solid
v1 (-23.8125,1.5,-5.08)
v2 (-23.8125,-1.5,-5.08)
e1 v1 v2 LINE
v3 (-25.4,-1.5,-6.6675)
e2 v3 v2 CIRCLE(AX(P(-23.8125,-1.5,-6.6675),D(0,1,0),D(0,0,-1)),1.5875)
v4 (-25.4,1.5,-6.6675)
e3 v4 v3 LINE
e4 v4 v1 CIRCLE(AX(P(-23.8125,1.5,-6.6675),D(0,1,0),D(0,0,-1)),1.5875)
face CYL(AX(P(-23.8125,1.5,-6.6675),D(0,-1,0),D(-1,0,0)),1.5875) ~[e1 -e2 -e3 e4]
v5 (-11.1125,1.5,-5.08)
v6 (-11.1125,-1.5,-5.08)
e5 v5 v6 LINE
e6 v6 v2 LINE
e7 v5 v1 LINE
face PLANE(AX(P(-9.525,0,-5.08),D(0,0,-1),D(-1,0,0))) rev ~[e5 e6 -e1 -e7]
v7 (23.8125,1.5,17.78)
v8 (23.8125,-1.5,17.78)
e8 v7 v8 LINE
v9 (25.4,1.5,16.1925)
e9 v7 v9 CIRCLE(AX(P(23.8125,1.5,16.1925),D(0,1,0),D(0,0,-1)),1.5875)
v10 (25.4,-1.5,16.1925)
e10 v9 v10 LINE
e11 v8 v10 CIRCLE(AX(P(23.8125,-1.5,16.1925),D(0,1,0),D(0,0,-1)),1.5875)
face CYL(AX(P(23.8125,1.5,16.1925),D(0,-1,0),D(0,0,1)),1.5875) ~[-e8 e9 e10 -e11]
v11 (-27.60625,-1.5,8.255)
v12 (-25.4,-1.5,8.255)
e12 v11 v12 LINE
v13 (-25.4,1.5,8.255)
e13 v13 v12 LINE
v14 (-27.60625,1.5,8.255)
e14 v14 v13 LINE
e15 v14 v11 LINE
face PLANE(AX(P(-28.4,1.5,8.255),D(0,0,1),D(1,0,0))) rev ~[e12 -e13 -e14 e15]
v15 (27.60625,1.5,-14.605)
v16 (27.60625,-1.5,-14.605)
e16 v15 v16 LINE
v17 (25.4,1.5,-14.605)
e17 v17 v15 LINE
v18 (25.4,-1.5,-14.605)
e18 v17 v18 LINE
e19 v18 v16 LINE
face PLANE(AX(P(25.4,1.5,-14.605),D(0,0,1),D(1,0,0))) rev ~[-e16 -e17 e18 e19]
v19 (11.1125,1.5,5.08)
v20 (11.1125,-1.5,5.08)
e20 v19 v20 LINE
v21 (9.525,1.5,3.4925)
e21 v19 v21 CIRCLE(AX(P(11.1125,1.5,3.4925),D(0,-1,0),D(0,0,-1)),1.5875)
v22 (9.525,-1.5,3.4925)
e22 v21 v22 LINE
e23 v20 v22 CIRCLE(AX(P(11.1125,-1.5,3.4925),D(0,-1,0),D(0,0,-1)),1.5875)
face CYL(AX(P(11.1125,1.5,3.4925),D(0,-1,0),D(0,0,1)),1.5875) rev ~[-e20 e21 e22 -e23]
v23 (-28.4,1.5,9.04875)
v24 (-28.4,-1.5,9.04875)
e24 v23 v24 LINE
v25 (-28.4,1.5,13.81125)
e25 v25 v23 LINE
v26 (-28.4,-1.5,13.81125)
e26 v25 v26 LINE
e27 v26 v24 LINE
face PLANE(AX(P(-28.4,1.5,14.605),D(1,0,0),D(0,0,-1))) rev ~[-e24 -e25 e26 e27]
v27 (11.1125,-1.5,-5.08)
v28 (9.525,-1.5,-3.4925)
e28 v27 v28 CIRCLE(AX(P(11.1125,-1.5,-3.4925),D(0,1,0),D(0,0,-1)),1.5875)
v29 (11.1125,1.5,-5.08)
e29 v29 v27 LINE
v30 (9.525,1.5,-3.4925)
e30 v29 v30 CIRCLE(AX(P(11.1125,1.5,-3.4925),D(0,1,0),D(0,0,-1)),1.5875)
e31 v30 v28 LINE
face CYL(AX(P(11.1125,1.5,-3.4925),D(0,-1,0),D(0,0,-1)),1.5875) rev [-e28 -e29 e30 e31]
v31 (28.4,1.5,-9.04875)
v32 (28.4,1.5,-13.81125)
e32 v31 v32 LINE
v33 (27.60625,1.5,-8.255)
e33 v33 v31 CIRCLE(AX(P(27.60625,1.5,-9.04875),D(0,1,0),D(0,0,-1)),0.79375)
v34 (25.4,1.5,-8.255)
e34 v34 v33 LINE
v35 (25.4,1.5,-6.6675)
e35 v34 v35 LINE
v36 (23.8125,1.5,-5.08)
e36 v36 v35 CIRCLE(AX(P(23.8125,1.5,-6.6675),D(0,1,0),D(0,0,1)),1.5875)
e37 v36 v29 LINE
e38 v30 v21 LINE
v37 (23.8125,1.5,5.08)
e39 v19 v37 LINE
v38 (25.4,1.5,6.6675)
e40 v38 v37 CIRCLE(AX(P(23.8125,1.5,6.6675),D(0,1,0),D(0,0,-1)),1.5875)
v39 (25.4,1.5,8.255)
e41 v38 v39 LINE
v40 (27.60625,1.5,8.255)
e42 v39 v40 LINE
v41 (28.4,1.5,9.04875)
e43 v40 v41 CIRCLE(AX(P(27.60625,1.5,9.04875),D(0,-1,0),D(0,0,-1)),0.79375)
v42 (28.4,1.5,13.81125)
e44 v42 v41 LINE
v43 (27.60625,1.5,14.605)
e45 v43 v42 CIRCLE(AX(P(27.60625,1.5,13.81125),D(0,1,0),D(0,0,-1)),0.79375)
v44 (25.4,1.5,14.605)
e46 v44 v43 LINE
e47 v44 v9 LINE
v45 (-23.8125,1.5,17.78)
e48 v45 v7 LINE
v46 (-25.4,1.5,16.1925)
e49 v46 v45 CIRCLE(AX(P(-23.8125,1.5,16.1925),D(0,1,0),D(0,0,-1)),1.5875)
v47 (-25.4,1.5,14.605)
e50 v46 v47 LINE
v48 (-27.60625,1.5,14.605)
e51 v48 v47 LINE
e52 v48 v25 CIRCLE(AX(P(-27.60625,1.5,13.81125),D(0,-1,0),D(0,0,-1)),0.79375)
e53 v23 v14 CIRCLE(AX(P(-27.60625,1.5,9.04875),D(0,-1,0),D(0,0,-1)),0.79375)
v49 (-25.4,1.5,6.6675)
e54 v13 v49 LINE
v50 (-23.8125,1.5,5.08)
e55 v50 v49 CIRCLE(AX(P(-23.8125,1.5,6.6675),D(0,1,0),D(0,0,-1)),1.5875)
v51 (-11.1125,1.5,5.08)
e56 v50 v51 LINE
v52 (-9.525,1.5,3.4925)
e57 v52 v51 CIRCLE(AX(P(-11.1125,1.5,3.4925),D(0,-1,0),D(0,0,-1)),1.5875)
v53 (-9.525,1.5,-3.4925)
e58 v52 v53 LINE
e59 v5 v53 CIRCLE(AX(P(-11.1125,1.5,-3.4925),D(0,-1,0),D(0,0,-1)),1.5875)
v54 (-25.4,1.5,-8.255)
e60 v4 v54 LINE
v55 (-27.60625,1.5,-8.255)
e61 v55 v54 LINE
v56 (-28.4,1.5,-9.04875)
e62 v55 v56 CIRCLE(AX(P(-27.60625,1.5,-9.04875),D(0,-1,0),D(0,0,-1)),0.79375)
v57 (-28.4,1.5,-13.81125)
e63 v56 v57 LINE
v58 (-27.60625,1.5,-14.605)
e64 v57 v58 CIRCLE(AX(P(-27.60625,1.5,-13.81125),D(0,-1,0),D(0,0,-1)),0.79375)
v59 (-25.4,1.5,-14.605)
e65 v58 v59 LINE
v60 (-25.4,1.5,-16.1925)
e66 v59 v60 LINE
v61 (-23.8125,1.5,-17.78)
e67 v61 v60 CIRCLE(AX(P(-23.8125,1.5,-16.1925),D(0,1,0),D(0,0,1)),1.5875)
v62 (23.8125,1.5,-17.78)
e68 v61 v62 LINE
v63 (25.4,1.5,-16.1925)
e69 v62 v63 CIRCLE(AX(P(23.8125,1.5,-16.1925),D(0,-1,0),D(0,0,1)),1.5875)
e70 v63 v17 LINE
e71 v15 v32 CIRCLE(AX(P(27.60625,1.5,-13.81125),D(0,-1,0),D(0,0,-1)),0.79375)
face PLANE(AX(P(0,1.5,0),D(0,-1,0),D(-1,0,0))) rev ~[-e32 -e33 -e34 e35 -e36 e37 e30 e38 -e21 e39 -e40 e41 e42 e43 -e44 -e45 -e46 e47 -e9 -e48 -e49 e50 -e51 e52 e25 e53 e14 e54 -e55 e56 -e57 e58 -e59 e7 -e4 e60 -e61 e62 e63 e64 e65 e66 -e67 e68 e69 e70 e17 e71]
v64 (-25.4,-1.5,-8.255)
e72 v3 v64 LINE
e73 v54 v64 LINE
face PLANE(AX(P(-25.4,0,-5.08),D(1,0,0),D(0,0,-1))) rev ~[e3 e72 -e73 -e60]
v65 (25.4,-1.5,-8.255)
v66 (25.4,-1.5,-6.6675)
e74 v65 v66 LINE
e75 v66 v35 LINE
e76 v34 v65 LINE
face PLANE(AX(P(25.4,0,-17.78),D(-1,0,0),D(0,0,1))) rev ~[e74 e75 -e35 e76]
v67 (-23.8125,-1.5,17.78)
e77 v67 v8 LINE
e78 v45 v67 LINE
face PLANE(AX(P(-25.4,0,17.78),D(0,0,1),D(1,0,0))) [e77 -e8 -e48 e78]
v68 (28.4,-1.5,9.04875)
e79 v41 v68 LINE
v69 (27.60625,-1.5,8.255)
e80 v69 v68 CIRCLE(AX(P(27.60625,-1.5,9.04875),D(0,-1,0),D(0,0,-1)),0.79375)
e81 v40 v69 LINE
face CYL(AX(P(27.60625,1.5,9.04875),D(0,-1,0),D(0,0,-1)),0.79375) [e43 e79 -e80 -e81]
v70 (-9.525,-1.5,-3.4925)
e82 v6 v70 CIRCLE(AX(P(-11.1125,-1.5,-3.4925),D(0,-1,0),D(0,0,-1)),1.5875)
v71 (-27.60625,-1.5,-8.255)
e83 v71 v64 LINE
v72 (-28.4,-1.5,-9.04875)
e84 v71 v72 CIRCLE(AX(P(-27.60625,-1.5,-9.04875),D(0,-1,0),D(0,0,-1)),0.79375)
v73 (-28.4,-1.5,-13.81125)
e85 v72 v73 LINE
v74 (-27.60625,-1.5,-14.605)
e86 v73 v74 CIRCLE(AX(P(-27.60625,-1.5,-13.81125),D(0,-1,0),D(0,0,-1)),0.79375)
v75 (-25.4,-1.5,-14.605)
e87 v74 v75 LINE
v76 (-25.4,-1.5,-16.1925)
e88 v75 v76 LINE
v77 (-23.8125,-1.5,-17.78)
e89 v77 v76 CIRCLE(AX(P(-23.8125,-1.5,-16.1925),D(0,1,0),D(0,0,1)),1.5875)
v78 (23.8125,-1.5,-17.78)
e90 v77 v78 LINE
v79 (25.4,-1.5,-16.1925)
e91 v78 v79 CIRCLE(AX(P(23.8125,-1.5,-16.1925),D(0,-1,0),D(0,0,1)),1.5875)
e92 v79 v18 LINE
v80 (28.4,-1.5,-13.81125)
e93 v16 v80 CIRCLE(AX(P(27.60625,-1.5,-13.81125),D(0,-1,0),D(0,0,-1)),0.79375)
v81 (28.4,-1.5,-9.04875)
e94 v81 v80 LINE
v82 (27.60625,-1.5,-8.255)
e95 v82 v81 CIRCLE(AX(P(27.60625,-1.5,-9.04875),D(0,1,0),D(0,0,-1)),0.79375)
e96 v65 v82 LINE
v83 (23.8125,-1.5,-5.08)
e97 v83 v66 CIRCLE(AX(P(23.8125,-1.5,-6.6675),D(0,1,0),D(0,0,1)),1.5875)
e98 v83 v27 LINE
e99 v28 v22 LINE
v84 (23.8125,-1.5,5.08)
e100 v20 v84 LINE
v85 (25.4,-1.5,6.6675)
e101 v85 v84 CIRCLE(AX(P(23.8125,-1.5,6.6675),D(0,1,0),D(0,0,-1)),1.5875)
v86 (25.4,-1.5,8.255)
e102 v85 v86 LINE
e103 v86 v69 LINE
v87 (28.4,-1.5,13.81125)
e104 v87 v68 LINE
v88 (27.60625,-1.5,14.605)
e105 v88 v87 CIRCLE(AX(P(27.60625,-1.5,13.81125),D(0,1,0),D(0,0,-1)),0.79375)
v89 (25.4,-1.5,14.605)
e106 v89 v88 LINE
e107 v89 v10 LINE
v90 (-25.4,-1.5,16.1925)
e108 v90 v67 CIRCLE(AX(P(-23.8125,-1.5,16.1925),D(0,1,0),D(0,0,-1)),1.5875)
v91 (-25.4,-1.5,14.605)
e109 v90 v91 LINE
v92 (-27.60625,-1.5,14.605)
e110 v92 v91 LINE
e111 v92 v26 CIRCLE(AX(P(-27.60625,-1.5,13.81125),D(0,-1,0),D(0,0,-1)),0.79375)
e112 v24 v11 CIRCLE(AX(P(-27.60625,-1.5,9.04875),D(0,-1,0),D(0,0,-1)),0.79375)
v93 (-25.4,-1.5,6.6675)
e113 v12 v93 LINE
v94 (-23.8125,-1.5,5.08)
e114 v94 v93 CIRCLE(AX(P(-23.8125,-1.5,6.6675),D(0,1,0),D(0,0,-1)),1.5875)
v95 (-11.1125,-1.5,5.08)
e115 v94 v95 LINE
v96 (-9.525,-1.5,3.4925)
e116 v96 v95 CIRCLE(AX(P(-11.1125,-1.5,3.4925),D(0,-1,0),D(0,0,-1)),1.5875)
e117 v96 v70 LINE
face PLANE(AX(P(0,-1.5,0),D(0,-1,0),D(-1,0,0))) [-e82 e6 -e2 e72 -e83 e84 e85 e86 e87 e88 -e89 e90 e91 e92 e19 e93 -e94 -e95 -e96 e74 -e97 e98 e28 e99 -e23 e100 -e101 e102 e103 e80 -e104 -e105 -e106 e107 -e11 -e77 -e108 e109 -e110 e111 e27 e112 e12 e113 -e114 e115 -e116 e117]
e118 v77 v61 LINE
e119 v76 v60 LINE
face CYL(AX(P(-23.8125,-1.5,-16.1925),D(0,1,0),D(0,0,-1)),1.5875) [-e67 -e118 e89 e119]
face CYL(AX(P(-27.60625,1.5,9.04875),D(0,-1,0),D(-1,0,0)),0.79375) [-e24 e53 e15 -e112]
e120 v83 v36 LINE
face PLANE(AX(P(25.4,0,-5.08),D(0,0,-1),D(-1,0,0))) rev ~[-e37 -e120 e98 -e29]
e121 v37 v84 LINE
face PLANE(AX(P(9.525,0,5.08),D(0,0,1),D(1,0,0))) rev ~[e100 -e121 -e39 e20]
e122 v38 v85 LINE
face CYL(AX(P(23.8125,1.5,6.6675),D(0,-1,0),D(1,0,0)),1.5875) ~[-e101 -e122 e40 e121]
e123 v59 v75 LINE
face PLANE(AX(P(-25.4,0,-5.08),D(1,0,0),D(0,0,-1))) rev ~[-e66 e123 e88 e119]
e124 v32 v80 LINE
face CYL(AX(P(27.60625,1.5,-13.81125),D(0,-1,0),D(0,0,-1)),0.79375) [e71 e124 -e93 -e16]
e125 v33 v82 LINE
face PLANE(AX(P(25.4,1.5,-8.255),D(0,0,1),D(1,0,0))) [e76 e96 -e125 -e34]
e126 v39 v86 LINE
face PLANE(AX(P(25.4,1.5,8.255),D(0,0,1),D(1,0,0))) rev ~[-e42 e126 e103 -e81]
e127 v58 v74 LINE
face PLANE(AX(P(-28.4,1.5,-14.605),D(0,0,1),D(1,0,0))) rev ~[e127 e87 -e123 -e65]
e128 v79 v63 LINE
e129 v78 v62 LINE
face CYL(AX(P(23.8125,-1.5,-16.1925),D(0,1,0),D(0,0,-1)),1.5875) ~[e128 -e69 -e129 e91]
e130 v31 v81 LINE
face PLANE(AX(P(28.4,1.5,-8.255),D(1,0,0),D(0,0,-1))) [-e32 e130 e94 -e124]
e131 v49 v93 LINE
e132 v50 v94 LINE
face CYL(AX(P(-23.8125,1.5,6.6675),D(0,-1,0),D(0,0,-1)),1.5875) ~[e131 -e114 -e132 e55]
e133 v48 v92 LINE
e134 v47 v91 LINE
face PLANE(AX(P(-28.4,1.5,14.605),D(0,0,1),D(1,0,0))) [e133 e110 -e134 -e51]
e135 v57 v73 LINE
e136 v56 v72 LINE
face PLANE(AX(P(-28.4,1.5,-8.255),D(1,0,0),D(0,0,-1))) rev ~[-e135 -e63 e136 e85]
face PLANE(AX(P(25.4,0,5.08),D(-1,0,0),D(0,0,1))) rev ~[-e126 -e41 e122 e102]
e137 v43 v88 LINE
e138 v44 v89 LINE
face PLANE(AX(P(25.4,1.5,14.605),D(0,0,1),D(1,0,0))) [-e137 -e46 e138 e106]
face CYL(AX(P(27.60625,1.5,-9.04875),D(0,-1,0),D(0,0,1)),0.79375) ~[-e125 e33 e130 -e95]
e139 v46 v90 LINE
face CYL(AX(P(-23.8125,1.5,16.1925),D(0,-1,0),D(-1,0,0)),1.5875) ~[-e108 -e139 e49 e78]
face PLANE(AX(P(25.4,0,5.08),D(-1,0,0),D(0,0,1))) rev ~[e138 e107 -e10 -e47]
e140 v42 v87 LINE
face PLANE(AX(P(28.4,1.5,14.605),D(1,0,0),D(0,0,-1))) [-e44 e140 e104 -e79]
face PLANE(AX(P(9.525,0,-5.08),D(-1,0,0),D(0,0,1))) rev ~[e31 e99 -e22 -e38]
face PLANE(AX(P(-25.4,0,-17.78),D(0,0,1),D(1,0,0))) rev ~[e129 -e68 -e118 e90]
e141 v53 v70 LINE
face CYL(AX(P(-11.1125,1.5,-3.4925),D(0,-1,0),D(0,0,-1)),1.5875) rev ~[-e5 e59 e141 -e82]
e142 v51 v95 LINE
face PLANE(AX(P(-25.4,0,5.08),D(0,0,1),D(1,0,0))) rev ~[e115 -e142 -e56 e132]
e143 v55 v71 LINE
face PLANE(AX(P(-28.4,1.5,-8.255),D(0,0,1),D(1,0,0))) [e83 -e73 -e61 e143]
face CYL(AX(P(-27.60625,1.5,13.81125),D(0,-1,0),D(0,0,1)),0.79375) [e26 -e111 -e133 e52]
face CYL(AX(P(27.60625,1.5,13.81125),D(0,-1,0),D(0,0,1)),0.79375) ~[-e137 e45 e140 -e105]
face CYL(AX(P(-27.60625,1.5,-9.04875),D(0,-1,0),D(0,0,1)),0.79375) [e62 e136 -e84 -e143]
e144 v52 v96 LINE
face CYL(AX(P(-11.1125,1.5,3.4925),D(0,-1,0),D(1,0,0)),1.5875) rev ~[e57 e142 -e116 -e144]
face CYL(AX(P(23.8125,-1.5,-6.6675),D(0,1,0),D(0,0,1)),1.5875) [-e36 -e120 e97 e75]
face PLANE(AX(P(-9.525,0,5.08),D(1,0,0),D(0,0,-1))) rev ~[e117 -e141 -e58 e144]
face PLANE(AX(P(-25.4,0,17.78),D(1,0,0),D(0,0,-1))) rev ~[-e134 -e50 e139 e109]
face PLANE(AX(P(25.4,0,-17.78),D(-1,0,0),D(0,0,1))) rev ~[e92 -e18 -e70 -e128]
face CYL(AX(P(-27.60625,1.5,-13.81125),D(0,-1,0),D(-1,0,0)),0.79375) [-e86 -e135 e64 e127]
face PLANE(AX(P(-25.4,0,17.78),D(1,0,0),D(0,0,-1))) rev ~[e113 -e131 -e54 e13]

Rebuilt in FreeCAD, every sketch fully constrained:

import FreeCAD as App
import Part
import Sketcher

V = App.Vector
Q = App.Units.Quantity


def edges_at(feature, points):
    """Names of the edges that pass closest to the given points."""
    edges = feature.Shape.Edges
    near = lambda p: min(range(len(edges)), key=lambda i: edges[i].distToShape(Part.Vertex(*p))[0])
    return sorted({f"Edge{near(p) + 1}" for p in points})


def add_polygon(sketch, points):
    """Adds a closed chain of lines whose ends are joined by coincident constraints."""
    first, n = sketch.GeometryCount, len(points)
    for a, b in zip(points, points[1:] + points[:1]):
        sketch.addGeometry(Part.LineSegment(App.Vector(*a, 0), App.Vector(*b, 0)), False)
    for i in range(n):
        sketch.addConstraint(Sketcher.Constraint("Coincident", first + i, 2, first + (i + 1) % n, 1))

doc = App.newDocument("Part")
params = doc.addObject("Spreadsheet::Sheet", "Params")
for row, (alias, value) in enumerate([
    ("sketch1_width", "2 in"),
    ("sketch1_height", "0.5 in"),
    ("sketch1_height2", "0.4 in"),
    ("sketch1_width2", "0.625 in"),
    ("pad1_length", "3 mm"),
    ("fillet_radius", "0.0625 in"),
    ("sketch2_height", "0.25 in"),
    ("pad2_length", "3 mm"),
    ("fillet2_radius", "0.03125 in"),
], start=1):
    params.set(f"A{row}", alias)
    params.set(f"B{row}", "=" + value)
    params.setAlias(f"B{row}", alias)

body = doc.addObject("PartDesign::Body", "Body")

# Sketch on XZ plane
sketch1 = body.newObject("Sketcher::SketchObject", "Sketch")
sketch1.AttachmentSupport = (doc.getObject("XZ_Plane"), [""])
sketch1.MapMode = "FlatFace"
add_polygon(sketch1, [(10, -5), (25, -5), (25, -18), (-25, -18), (-25, -5), (-10, -5), (-10, 5), (-25, 5), (-25, 18), (25, 18), (25, 5), (10, 5)])  # lines 0-11
sketch1.addConstraint([
    Sketcher.Constraint("Horizontal", 0),
    Sketcher.Constraint("Vertical", 1),
    Sketcher.Constraint("Horizontal", 2),
    Sketcher.Constraint("Vertical", 3),
    Sketcher.Constraint("Horizontal", 4),
    Sketcher.Constraint("Vertical", 5),
    Sketcher.Constraint("Horizontal", 6),
    Sketcher.Constraint("Vertical", 7),
    Sketcher.Constraint("Horizontal", 8),
    Sketcher.Constraint("Vertical", 9),
    Sketcher.Constraint("Horizontal", 10),
    Sketcher.Constraint("Vertical", 11),
    Sketcher.Constraint("Symmetric", 0, 2, 6, 2, -1, 1),
    Sketcher.Constraint("Symmetric", 2, 2, 8, 2, -1, 1),
    Sketcher.Constraint("Symmetric", 4, 2, 10, 2, -1, 1),
    Sketcher.Constraint("Symmetric", 0, 2, 3, 2, -2),
    Sketcher.Constraint("DistanceX", 2, 2, 2, 1, Q("2 in")),
    Sketcher.Constraint("DistanceY", 1, 2, 1, 1, Q("0.5 in")),
    Sketcher.Constraint("DistanceY", 5, 1, 5, 2, Q("0.4 in")),
    Sketcher.Constraint("DistanceX", 0, 1, 0, 2, Q("0.625 in")),
])
sketch1.setExpression("Constraints[28]", "Params.sketch1_width")
sketch1.setExpression("Constraints[29]", "Params.sketch1_height")
sketch1.setExpression("Constraints[30]", "Params.sketch1_height2")
sketch1.setExpression("Constraints[31]", "Params.sketch1_width2")
pad1 = body.newObject("PartDesign::Pad", "Pad")
pad1.Profile = sketch1
pad1.setExpression("Length", "Params.pad1_length")
pad1.Midplane = True
doc.recompute()

fillet = body.newObject("PartDesign::Fillet", "Fillet")
fillet.Base = (pad1, edges_at(pad1, [
    (25.4, 0, -17.78),
    (25.4, 0, -5.08),
    (9.525, 0, -5.08),
    (9.525, 0, 5.08),
    (25.4, 0, 5.08),
    (25.4, 0, 17.78),
    (-25.4, 0, 17.78),
    (-25.4, 0, 5.08),
    (-9.525, 0, 5.08),
    (-9.525, 0, -5.08),
    (-25.4, 0, -5.08),
    (-25.4, 0, -17.78),
]))
fillet.setExpression("Radius", "Params.fillet_radius")

# Sketch on XZ plane
sketch2 = body.newObject("Sketcher::SketchObject", "Sketch001")
sketch2.AttachmentSupport = (doc.getObject("XZ_Plane"), [""])
sketch2.MapMode = "FlatFace"
sketch2.AttachmentOffset = App.Placement(V(0, 0, -1.5), App.Rotation())
add_polygon(sketch2, [(-28.4, -14.6), (-28.4, -8.3), (-25.4, -8.3), (-25.4, -14.6)])  # lines 0-3
add_polygon(sketch2, [(25.4, -14.6), (25.4, -8.3), (28.4, -8.3), (28.4, -14.6)])  # lines 4-7
add_polygon(sketch2, [(25.4, 8.3), (25.4, 14.6), (28.4, 14.6), (28.4, 8.3)])  # lines 8-11
add_polygon(sketch2, [(-28.4, 8.3), (-28.4, 14.6), (-25.4, 14.6), (-25.4, 8.3)])  # lines 12-15
sketch2.addConstraint([
    Sketcher.Constraint("Vertical", 0),
    Sketcher.Constraint("Horizontal", 1),
    Sketcher.Constraint("Vertical", 2),
    Sketcher.Constraint("Horizontal", 3),
    Sketcher.Constraint("Vertical", 4),
    Sketcher.Constraint("Horizontal", 5),
    Sketcher.Constraint("Vertical", 6),
    Sketcher.Constraint("Horizontal", 7),
    Sketcher.Constraint("Vertical", 8),
    Sketcher.Constraint("Horizontal", 9),
    Sketcher.Constraint("Vertical", 10),
    Sketcher.Constraint("Horizontal", 11),
    Sketcher.Constraint("Vertical", 12),
    Sketcher.Constraint("Horizontal", 13),
    Sketcher.Constraint("Vertical", 14),
    Sketcher.Constraint("Horizontal", 15),
    Sketcher.Constraint("Symmetric", 2, 2, 8, 2, -1, 1),
    Sketcher.Constraint("Symmetric", 0, 2, 10, 2, -1, 1),
    Sketcher.Constraint("Symmetric", 6, 2, 12, 2, -1, 1),
    Sketcher.Constraint("Symmetric", 4, 2, 14, 2, -1, 1),
    Sketcher.Constraint("Symmetric", 1, 2, 4, 2, -2),
    Sketcher.Constraint("Symmetric", 3, 2, 6, 2, -2),
    Sketcher.Constraint("DistanceX", 1, 2, -1, 1, Q("1 in")),
    Sketcher.Constraint("DistanceY", 0, 1, 0, 2, Q("0.25 in")),
    Sketcher.Constraint("DistanceY", 4, 2, 8, 2, Q("0.9 in")),
    Sketcher.Constraint("DistanceX", 1, 1, 1, 2, 3.0),
])
sketch2.setExpression("Constraints[39]", "Params.sketch2_height")
pad2 = body.newObject("PartDesign::Pad", "Pad001")
pad2.Profile = sketch2
pad2.setExpression("Length", "Params.pad2_length")
doc.recompute()

fillet2 = body.newObject("PartDesign::Fillet", "Fillet001")
fillet2.Base = (pad2, edges_at(pad2, [
    (-28.4, 0, 14.605),
    (-28.4, 0, 8.255),
    (28.4, 0, 8.255),
    (28.4, 0, 14.605),
    (28.4, 0, -14.605),
    (28.4, 0, -8.255),
    (-28.4, 0, -8.255),
    (-28.4, 0, -14.605),
]))
fillet2.setExpression("Radius", "Params.fillet2_radius")

doc.recompute()
